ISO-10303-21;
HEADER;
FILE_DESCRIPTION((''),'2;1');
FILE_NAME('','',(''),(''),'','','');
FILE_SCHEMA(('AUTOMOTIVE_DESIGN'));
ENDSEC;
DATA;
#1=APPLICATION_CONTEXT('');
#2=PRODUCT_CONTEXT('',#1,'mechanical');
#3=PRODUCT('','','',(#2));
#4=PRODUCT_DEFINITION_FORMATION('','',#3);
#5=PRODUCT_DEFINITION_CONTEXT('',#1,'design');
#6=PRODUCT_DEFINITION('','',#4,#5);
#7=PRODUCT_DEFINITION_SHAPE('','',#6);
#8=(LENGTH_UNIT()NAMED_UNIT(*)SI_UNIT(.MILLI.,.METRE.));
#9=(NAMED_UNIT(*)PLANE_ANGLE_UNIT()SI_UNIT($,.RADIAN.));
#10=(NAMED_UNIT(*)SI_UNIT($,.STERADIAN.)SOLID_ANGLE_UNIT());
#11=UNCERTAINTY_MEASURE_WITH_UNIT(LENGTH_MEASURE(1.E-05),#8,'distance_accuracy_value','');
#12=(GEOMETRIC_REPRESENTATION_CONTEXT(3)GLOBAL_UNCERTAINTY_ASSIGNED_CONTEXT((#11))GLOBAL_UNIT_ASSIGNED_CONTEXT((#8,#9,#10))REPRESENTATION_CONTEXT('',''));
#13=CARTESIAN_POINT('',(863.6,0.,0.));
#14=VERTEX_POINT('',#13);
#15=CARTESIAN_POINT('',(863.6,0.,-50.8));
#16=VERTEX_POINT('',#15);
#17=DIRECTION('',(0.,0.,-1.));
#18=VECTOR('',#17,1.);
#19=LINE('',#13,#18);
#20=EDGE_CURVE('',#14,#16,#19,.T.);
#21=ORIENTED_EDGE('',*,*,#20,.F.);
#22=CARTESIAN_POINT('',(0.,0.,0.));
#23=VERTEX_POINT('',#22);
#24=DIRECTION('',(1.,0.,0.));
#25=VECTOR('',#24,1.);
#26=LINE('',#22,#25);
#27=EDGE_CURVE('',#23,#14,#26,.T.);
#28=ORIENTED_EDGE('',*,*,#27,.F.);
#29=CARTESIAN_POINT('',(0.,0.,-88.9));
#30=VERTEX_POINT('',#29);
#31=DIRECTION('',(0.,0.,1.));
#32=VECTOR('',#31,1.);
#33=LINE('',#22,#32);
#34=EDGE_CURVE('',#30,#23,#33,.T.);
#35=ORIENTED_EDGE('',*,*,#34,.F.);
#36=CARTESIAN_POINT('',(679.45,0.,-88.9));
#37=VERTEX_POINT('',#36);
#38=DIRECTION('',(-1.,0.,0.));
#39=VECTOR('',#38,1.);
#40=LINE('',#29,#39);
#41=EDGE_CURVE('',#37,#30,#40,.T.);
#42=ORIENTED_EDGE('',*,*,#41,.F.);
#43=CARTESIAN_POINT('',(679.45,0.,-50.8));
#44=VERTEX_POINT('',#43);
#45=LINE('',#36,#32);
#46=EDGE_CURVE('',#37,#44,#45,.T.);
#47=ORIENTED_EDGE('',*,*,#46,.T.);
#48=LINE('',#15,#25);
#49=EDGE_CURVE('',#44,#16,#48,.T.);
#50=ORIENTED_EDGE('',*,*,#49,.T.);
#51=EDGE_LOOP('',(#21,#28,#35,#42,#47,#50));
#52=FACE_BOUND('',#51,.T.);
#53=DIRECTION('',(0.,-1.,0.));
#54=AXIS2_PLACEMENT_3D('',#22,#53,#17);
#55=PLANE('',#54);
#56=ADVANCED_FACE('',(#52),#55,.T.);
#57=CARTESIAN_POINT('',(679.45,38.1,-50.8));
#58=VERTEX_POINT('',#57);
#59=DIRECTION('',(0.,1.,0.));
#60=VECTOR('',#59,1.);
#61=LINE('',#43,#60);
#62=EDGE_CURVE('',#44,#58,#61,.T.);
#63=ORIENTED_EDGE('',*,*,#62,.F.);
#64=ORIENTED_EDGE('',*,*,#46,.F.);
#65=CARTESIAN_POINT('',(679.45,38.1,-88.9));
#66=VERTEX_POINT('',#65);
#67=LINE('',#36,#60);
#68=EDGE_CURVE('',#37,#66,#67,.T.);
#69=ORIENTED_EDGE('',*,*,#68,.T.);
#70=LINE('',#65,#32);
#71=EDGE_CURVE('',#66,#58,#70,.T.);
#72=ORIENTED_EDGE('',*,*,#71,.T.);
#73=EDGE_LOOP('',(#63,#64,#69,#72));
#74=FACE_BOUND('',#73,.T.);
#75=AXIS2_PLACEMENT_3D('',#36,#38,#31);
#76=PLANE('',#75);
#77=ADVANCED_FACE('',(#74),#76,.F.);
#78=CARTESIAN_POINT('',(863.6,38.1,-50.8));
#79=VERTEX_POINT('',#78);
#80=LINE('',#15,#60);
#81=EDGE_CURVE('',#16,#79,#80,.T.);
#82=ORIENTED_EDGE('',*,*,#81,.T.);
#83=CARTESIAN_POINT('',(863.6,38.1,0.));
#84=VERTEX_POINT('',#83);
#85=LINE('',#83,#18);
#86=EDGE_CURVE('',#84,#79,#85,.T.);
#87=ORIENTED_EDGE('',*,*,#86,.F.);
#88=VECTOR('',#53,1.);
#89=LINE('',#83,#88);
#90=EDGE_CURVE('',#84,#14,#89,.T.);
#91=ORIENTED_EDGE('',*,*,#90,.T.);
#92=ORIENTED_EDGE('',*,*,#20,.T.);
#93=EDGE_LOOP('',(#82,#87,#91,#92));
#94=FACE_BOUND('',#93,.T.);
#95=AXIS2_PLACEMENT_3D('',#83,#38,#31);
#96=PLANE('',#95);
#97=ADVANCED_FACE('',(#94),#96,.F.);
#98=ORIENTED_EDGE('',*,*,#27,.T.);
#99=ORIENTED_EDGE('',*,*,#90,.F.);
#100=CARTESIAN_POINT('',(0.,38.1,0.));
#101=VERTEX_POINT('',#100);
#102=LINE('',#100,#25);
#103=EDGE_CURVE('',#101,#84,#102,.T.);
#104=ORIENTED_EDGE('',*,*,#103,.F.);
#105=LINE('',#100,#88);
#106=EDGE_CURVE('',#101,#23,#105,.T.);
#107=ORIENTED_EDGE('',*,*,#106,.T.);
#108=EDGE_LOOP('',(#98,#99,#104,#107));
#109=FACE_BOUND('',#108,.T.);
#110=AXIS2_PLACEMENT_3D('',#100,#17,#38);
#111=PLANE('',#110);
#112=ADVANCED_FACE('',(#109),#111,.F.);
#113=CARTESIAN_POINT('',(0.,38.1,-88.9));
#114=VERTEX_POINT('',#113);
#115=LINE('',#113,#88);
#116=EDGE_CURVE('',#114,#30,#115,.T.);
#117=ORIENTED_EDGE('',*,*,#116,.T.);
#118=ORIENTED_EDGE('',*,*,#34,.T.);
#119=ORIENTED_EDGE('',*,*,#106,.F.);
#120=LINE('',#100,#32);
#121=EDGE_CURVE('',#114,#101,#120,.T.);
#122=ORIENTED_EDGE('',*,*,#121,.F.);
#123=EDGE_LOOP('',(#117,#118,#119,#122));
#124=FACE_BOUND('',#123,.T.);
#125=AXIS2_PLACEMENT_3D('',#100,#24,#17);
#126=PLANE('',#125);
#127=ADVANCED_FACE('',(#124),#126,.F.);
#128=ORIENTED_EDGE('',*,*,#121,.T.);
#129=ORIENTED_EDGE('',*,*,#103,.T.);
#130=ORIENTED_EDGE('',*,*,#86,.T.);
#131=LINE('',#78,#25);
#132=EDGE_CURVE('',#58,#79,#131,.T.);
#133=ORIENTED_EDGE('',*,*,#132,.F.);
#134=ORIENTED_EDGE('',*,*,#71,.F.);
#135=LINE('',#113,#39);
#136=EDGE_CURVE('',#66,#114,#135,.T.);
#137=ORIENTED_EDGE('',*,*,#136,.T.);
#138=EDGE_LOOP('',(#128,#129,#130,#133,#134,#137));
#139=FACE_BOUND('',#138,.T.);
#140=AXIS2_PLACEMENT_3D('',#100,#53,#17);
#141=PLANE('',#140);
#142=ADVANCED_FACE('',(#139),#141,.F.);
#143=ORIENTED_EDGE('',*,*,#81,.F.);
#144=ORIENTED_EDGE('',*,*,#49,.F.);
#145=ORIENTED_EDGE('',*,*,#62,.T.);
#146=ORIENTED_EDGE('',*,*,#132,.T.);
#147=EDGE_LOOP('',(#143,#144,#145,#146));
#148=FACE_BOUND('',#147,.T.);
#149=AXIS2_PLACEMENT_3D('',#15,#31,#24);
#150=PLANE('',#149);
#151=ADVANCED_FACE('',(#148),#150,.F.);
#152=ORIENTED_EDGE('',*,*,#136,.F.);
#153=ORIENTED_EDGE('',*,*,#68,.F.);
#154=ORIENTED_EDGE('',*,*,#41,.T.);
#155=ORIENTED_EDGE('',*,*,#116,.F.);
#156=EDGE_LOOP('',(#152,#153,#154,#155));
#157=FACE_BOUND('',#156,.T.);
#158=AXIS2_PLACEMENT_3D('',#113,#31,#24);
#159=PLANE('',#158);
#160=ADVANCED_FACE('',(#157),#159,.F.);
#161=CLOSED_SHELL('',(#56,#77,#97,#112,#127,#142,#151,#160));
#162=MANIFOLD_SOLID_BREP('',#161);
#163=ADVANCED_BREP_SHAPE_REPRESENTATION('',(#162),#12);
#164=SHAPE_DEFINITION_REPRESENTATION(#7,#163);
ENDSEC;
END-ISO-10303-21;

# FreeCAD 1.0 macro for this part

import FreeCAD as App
import Part
import Sketcher
Q = App.Units.Quantity

doc = App.newDocument("Part")
body = doc.addObject("PartDesign::Body", "Body")

# Sketch on XZ plane
sketch1 = doc.addObject("Sketcher::SketchObject", "Sketch")
body.addObject(sketch1)
sketch1.AttachmentSupport = (doc.XZ_Plane, [""])
sketch1.MapMode = "FlatFace"
sketch1.addGeometry([
    Part.LineSegment(App.Vector(0, -89, 0), App.Vector(0, 0, 0)),
    Part.LineSegment(App.Vector(0, 0, 0), App.Vector(864, 0, 0)),
    Part.LineSegment(App.Vector(864, 0, 0), App.Vector(864, -89, 0)),
    Part.LineSegment(App.Vector(864, -89, 0), App.Vector(0, -89, 0)),
], False)
sketch1.addConstraint([
    Sketcher.Constraint("Coincident", 0, 2, 1, 1),
    Sketcher.Constraint("Coincident", 1, 2, 2, 1),
    Sketcher.Constraint("Coincident", 2, 2, 3, 1),
    Sketcher.Constraint("Coincident", 3, 2, 0, 1),
    Sketcher.Constraint("Vertical", 0),
    Sketcher.Constraint("Horizontal", 1),
    Sketcher.Constraint("Vertical", 2),
    Sketcher.Constraint("Horizontal", 3),
    Sketcher.Constraint("Coincident", 0, 2, -1, 1),
    Sketcher.Constraint("DistanceX", 1, 1, 1, 2, Q("34 in")),
    Sketcher.Constraint("DistanceY", 0, 1, 0, 2, Q("3.5 in")),
])
pad1 = doc.addObject("PartDesign::Pad", "Pad")
body.addObject(pad1)
pad1.Profile = sketch1
pad1.Length = Q("1.5 in")
pad1.Reversed = True

# Sketch on XZ plane
sketch2 = doc.addObject("Sketcher::SketchObject", "Sketch001")
body.addObject(sketch2)
sketch2.AttachmentSupport = (doc.XZ_Plane, [""])
sketch2.MapMode = "FlatFace"
sketch2.AttachmentOffset = App.Placement(App.Vector(0, 0, -1.5 * 25.4), App.Rotation())
sketch2.addGeometry([
    Part.LineSegment(App.Vector(679, -89, 0), App.Vector(679, -51, 0)),
    Part.LineSegment(App.Vector(679, -51, 0), App.Vector(864, -51, 0)),
    Part.LineSegment(App.Vector(864, -51, 0), App.Vector(864, -89, 0)),
    Part.LineSegment(App.Vector(864, -89, 0), App.Vector(679, -89, 0)),
], False)
sketch2.addConstraint([
    Sketcher.Constraint("Coincident", 0, 2, 1, 1),
    Sketcher.Constraint("Coincident", 1, 2, 2, 1),
    Sketcher.Constraint("Coincident", 2, 2, 3, 1),
    Sketcher.Constraint("Coincident", 3, 2, 0, 1),
    Sketcher.Constraint("Vertical", 0),
    Sketcher.Constraint("Horizontal", 1),
    Sketcher.Constraint("Vertical", 2),
    Sketcher.Constraint("Horizontal", 3),
    Sketcher.Constraint("DistanceY", 0, 1, 0, 2, Q("1.5 in")),
    Sketcher.Constraint("DistanceY", 0, 2, -1, 1, Q("2 in")),
    Sketcher.Constraint("DistanceX", -1, 1, 1, 2, Q("34 in")),
    Sketcher.Constraint("DistanceX", 1, 1, 1, 2, Q("7.25 in")),
])
pocket1 = doc.addObject("PartDesign::Pocket", "Pocket")
body.addObject(pocket1)
pocket1.Profile = sketch2
pocket1.Type = "ThroughAll"
pocket1.Reversed = True

doc.recompute()
